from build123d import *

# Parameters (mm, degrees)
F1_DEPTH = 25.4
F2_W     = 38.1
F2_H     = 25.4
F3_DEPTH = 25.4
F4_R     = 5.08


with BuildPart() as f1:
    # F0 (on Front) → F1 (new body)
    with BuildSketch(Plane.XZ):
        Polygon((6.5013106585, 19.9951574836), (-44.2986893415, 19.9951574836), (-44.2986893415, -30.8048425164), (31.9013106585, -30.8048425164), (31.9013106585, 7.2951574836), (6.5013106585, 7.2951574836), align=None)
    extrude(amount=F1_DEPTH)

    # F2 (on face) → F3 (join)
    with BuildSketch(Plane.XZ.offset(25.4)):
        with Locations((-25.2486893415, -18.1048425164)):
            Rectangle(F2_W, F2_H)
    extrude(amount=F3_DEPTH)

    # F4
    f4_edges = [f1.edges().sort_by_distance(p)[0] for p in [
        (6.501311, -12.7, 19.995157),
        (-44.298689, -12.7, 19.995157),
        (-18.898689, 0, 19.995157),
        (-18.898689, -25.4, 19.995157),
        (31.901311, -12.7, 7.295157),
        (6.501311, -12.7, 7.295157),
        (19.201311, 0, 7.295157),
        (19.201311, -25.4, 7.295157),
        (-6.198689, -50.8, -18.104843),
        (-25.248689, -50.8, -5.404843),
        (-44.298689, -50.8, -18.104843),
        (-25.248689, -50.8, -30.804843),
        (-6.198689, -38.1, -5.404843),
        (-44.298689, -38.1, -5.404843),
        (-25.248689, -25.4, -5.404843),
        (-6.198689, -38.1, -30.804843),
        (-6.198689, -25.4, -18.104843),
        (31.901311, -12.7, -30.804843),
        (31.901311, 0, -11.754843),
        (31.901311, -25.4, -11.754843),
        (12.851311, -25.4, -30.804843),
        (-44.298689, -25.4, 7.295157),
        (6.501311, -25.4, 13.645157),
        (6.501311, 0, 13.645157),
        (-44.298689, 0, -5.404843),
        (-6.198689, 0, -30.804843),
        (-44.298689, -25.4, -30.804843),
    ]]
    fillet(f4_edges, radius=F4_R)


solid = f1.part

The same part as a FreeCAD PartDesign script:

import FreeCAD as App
import Part
import Sketcher

V = App.Vector
Q = App.Units.Quantity


def add_polygon(sketch, points):
    """Adds a closed chain of lines whose ends are joined by coincident constraints."""
    first, n = sketch.GeometryCount, len(points)
    for a, b in zip(points, points[1:] + points[:1]):
        sketch.addGeometry(Part.LineSegment(App.Vector(*a, 0), App.Vector(*b, 0)), False)
    for i in range(n):
        sketch.addConstraint(Sketcher.Constraint("Coincident", first + i, 2, first + (i + 1) % n, 1))

doc = App.newDocument("Part")
body = doc.addObject("PartDesign::Body", "Body")

# Sketch on XZ plane
sketch1 = body.newObject("Sketcher::SketchObject", "Sketch")
sketch1.AttachmentSupport = (doc.getObject("XZ_Plane"), [""])
sketch1.MapMode = "FlatFace"
add_polygon(sketch1, [(6.501311, 19.995157), (-44.298689, 19.995157), (-44.298689, -30.804843), (31.901311, -30.804843), (31.901311, 7.295157), (6.501311, 7.295157)])  # lines 0-5
sketch1.addConstraint(Sketcher.Constraint("Horizontal", 0))
sketch1.addConstraint(Sketcher.Constraint("Vertical", 1))
sketch1.addConstraint(Sketcher.Constraint("Horizontal", 2))
sketch1.addConstraint(Sketcher.Constraint("Vertical", 3))
sketch1.addConstraint(Sketcher.Constraint("Horizontal", 4))
sketch1.addConstraint(Sketcher.Constraint("Vertical", 5))
sketch1.addConstraint(Sketcher.Constraint("Equal", 0, 1))
sketch1.addConstraint(Sketcher.Constraint("DistanceX", 0, 2, 0, 1, Q("2 in")))
sketch1.addConstraint(Sketcher.Constraint("DistanceX", 2, 1, 2, 2, Q("3 in")))
sketch1.addConstraint(Sketcher.Constraint("DistanceY", 3, 1, 3, 2, Q("1.5 in")))
sketch1.addConstraint(Sketcher.Constraint("DistanceX", 0, 2, -1, 1, 44.298689))
sketch1.addConstraint(Sketcher.Constraint("DistanceY", -1, 1, 0, 2, 19.995157))
pad1 = body.newObject("PartDesign::Pad", "Pad")
pad1.Profile = sketch1
pad1.Length = Q("1 in")

# Sketch on XZ plane
sketch2 = body.newObject("Sketcher::SketchObject", "Sketch001")
sketch2.AttachmentSupport = (doc.getObject("XZ_Plane"), [""])
sketch2.MapMode = "FlatFace"
sketch2.AttachmentOffset = App.Placement(V(0, 0, 1 * 25.4), App.Rotation())
add_polygon(sketch2, [(-44.298689, -5.404843), (-44.298689, -30.804843), (-6.198689, -30.804843), (-6.198689, -5.404843)])  # lines 0-3
sketch2.addConstraint(Sketcher.Constraint("Vertical", 0))
sketch2.addConstraint(Sketcher.Constraint("Horizontal", 1))
sketch2.addConstraint(Sketcher.Constraint("Vertical", 2))
sketch2.addConstraint(Sketcher.Constraint("Horizontal", 3))
sketch2.addConstraint(Sketcher.Constraint("DistanceY", 0, 2, 0, 1, Q("1 in")))
sketch2.addConstraint(Sketcher.Constraint("DistanceX", 1, 1, 1, 2, Q("1.5 in")))
sketch2.addConstraint(Sketcher.Constraint("DistanceX", 0, 2, -1, 1, 44.298689))
sketch2.addConstraint(Sketcher.Constraint("DistanceY", 0, 2, -1, 1, 30.804843))
pad2 = body.newObject("PartDesign::Pad", "Pad001")
pad2.Profile = sketch2
pad2.Length = Q("1 in")
doc.recompute()

fillet = body.newObject("PartDesign::Fillet", "Fillet")
fillet.Base = (pad2, ["Edge1"])
fillet.UseAllEdges = True
fillet.Radius = Q("0.2 in")

doc.recompute()
